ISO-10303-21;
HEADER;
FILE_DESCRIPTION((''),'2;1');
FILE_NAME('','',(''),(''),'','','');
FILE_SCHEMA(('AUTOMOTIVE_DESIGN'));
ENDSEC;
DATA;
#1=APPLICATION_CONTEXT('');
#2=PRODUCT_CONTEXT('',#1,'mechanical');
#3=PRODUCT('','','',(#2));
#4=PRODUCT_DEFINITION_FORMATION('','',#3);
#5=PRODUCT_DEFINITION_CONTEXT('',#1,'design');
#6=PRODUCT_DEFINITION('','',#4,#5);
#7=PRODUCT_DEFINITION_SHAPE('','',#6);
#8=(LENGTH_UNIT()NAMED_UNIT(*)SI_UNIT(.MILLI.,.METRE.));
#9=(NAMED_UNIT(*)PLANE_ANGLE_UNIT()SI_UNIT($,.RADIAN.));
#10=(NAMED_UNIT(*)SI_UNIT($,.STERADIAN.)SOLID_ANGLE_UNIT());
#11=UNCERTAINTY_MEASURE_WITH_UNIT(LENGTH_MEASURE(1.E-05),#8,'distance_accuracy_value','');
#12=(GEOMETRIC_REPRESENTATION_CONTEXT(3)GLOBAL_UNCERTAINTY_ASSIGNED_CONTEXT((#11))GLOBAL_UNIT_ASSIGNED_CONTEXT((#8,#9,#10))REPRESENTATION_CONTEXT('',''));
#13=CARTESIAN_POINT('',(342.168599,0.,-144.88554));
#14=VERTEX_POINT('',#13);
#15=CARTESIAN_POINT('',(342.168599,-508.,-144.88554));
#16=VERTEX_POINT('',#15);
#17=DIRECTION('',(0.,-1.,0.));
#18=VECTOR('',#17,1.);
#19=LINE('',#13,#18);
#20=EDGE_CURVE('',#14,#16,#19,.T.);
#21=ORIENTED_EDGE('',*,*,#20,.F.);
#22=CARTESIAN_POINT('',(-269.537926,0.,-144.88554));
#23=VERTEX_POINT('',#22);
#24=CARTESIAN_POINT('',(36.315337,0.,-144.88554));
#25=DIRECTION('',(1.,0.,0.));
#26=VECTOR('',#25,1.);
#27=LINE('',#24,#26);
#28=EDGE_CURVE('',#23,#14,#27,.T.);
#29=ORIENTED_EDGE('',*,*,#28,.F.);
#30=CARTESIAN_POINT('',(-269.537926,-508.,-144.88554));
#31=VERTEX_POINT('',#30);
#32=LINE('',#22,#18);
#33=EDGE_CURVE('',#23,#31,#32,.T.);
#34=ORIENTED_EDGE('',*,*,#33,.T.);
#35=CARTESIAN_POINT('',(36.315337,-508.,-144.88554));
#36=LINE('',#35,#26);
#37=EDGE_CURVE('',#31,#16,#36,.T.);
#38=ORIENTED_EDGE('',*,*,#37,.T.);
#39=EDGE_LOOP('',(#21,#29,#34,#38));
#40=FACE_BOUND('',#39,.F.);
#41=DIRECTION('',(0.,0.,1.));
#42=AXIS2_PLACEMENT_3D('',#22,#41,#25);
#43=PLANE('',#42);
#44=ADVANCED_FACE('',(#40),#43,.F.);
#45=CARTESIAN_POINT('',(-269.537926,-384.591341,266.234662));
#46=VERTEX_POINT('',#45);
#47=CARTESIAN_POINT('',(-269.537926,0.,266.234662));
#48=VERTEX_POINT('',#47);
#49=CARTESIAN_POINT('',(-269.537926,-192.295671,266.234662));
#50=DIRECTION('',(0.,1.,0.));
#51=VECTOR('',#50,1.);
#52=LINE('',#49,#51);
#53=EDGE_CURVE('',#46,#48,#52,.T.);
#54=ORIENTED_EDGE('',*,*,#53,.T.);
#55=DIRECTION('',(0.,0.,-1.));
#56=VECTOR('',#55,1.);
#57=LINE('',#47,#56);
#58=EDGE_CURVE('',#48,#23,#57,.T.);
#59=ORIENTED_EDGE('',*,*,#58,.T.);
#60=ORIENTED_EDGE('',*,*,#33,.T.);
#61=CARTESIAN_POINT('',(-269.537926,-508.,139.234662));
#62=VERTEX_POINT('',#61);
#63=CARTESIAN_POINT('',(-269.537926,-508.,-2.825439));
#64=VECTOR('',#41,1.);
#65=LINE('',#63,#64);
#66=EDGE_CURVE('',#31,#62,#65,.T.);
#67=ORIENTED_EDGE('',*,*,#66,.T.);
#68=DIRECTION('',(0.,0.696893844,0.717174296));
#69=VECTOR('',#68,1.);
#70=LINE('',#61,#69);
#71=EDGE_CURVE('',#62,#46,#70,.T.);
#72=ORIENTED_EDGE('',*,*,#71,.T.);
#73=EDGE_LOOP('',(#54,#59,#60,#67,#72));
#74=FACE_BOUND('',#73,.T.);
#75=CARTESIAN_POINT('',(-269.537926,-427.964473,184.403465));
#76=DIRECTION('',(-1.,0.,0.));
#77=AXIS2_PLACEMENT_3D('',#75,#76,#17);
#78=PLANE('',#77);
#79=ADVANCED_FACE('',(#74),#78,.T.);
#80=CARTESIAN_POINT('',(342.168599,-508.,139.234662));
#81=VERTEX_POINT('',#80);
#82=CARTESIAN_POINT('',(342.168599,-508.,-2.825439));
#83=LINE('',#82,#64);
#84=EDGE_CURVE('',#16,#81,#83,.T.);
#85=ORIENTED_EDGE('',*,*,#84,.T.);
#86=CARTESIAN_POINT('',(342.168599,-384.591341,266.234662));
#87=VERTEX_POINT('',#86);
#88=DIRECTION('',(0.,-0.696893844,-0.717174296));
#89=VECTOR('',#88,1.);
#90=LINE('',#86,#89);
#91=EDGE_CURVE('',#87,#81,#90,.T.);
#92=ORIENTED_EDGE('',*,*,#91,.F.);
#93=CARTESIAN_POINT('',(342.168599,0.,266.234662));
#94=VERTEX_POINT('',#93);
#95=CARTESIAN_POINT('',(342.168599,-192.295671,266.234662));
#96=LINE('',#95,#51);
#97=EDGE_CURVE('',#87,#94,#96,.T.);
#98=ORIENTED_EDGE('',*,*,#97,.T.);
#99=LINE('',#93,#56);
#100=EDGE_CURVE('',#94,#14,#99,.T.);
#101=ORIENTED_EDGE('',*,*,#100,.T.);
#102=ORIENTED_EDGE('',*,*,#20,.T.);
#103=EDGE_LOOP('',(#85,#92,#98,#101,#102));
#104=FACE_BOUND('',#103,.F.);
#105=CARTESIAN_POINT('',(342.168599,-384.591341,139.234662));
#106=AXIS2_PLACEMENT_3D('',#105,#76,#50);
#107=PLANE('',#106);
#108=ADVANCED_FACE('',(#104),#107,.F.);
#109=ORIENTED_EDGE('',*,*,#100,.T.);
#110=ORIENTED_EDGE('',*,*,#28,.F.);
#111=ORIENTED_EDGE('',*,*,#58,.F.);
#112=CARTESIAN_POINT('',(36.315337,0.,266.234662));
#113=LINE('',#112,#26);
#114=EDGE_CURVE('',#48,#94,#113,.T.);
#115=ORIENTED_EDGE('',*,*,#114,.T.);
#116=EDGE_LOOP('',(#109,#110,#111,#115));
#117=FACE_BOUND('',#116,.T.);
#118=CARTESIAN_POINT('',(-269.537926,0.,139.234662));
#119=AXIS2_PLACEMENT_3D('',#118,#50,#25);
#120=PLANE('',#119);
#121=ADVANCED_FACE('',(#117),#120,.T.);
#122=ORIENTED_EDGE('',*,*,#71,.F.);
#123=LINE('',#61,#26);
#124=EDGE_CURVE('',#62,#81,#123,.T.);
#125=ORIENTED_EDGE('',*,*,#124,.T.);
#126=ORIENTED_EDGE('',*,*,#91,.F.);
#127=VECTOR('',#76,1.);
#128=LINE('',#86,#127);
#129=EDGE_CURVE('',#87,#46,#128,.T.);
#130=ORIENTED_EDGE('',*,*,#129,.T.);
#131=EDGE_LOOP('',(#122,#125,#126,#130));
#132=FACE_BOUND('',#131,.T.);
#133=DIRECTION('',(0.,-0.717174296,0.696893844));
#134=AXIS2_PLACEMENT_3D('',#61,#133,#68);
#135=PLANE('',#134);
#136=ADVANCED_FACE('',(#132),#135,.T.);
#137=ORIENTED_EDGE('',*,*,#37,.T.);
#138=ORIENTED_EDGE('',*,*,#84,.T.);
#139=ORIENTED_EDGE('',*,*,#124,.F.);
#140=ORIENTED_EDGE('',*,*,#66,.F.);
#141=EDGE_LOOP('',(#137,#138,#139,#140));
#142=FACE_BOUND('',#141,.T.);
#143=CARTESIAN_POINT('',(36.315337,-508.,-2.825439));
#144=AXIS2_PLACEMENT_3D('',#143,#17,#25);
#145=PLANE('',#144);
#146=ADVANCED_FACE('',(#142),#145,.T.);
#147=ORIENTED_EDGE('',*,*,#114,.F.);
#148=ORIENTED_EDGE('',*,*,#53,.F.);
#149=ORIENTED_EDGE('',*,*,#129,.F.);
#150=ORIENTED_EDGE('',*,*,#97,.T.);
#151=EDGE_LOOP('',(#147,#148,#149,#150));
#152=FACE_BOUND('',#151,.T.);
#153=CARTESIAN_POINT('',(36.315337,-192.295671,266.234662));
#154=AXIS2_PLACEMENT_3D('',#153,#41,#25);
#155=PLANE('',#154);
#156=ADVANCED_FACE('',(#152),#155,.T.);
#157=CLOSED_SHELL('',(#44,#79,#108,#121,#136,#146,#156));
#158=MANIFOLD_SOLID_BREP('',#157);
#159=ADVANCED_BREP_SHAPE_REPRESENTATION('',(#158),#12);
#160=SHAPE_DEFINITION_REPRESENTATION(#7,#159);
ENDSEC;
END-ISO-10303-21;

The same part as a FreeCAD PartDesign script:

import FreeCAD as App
import Part
import Sketcher
Q = App.Units.Quantity


def add_polygon(sketch, points):
    """Adds a closed chain of lines whose ends are joined by coincident constraints."""
    first, n = sketch.GeometryCount, len(points)
    for a, b in zip(points, points[1:] + points[:1]):
        sketch.addGeometry(Part.LineSegment(App.Vector(*a, 0), App.Vector(*b, 0)), False)
    for i in range(n):
        sketch.addConstraint(Sketcher.Constraint("Coincident", first + i, 2, first + (i + 1) % n, 1))

doc = App.newDocument("Part")
params = doc.addObject("Spreadsheet::Sheet", "Params")
for row, (alias, value) in enumerate([
    ("pad1_length", "20 in"),
    ("pad2_length", "5 in"),
    ("sketch3_height", "5 in"),
    ("pad3_length", "21.09 in"),
    ("sketch4_height", "5 in"),
    ("pad4_length", "10 in"),
], start=1):
    params.set(f"A{row}", alias)
    params.set(f"B{row}", "=" + value)
    params.setAlias(f"B{row}", alias)

body = doc.addObject("PartDesign::Body", "Body")

# Sketch on XZ plane
sketch1 = doc.addObject("Sketcher::SketchObject", "Sketch")
body.addObject(sketch1)
sketch1.AttachmentSupport = (doc.XZ_Plane, [""])
sketch1.MapMode = "FlatFace"
add_polygon(sketch1, [(-270, 139), (-270, -145), (342, -145), (342, 139)])  # lines 0-3
sketch1.addConstraint(Sketcher.Constraint("Vertical", 0))
sketch1.addConstraint(Sketcher.Constraint("Horizontal", 1))
sketch1.addConstraint(Sketcher.Constraint("Vertical", 2))
sketch1.addConstraint(Sketcher.Constraint("Horizontal", 3))
sketch1.addConstraint(Sketcher.Constraint("DistanceX", -1, 1, 1, 2, 342.168599))
sketch1.addConstraint(Sketcher.Constraint("DistanceX", 1, 1, 1, 2, 611.706525))
sketch1.addConstraint(Sketcher.Constraint("DistanceY", 0, 2, 0, 1, 284.120202))
sketch1.addConstraint(Sketcher.Constraint("DistanceY", 0, 2, -1, 1, 144.88554))
pad1 = doc.addObject("PartDesign::Pad", "Pad")
body.addObject(pad1)
pad1.Profile = sketch1
pad1.setExpression("Length", "Params.pad1_length")

# Sketch on XY plane
sketch2 = doc.addObject("Sketcher::SketchObject", "Sketch001")
body.addObject(sketch2)
sketch2.AttachmentSupport = (doc.XY_Plane, [""])
sketch2.MapMode = "FlatFace"
sketch2.AttachmentOffset = App.Placement(App.Vector(0, 0, 139.234662), App.Rotation())
add_polygon(sketch2, [(-270, 0), (-270, -385), (342, -385), (342, 0)])  # lines 0-3
sketch2.addConstraint(Sketcher.Constraint("Vertical", 0))
sketch2.addConstraint(Sketcher.Constraint("Horizontal", 1))
sketch2.addConstraint(Sketcher.Constraint("Vertical", 2))
sketch2.addConstraint(Sketcher.Constraint("Horizontal", 3))
sketch2.addConstraint(Sketcher.Constraint("PointOnObject", 2, 2, -1))
sketch2.addConstraint(Sketcher.Constraint("DistanceY", 0, 2, 0, 1, 384.591341))
sketch2.addConstraint(Sketcher.Constraint("DistanceX", -1, 1, 1, 2, 342.168599))
sketch2.addConstraint(Sketcher.Constraint("DistanceX", 1, 1, 1, 2, 611.706525))
pad2 = doc.addObject("PartDesign::Pad", "Pad001")
body.addObject(pad2)
pad2.Profile = sketch2
pad2.setExpression("Length", "Params.pad2_length")

# Sketch on YZ plane
sketch3 = doc.addObject("Sketcher::SketchObject", "Sketch002")
body.addObject(sketch3)
sketch3.AttachmentSupport = (doc.YZ_Plane, [""])
sketch3.MapMode = "FlatFace"
sketch3.AttachmentOffset = App.Placement(App.Vector(0, 0, -269.537926), App.Rotation())
add_polygon(sketch3, [(-508, 139), (-385, 266), (-385, 139)])  # lines 0-2
sketch3.addConstraint(Sketcher.Constraint("Vertical", 1))
sketch3.addConstraint(Sketcher.Constraint("Horizontal", 2))
sketch3.addConstraint(Sketcher.Constraint("DistanceY", 1, 2, 1, 1, Q("5 in")))
sketch3.addConstraint(Sketcher.Constraint("DistanceX", 2, 2, -1, 1, Q("20 in")))
sketch3.addConstraint(Sketcher.Constraint("DistanceX", 2, 2, 2, 1, 123.408659))
sketch3.addConstraint(Sketcher.Constraint("DistanceY", -1, 1, 0, 2, 266.234662))
sketch3.setExpression("Constraints[5]", "Params.sketch3_height")
pad3 = doc.addObject("PartDesign::Pad", "Pad002")
body.addObject(pad3)
pad3.Profile = sketch3
pad3.setExpression("Length", "Params.pad3_length")

# Sketch on YZ plane
sketch4 = doc.addObject("Sketcher::SketchObject", "Sketch003")
body.addObject(sketch4)
sketch4.AttachmentSupport = (doc.YZ_Plane, [""])
sketch4.MapMode = "FlatFace"
sketch4.AttachmentOffset = App.Placement(App.Vector(0, 0, 342.168599), App.Rotation())
add_polygon(sketch4, [(-385, 139), (-385, 266), (-508, 139)])  # lines 0-2
sketch4.addConstraint(Sketcher.Constraint("Vertical", 0))
sketch4.addConstraint(Sketcher.Constraint("Horizontal", 2))
sketch4.addConstraint(Sketcher.Constraint("DistanceY", 0, 1, 0, 2, Q("5 in")))
sketch4.addConstraint(Sketcher.Constraint("DistanceX", 1, 2, -1, 1, Q("20 in")))
sketch4.addConstraint(Sketcher.Constraint("DistanceX", 2, 1, 2, 2, 123.408659))
sketch4.addConstraint(Sketcher.Constraint("DistanceY", -1, 1, 0, 2, 266.234662))
sketch4.setExpression("Constraints[5]", "Params.sketch4_height")
pad4 = doc.addObject("PartDesign::Pad", "Pad003")
body.addObject(pad4)
pad4.Profile = sketch4
pad4.setExpression("Length", "Params.pad4_length")
pad4.Reversed = True

doc.recompute()
